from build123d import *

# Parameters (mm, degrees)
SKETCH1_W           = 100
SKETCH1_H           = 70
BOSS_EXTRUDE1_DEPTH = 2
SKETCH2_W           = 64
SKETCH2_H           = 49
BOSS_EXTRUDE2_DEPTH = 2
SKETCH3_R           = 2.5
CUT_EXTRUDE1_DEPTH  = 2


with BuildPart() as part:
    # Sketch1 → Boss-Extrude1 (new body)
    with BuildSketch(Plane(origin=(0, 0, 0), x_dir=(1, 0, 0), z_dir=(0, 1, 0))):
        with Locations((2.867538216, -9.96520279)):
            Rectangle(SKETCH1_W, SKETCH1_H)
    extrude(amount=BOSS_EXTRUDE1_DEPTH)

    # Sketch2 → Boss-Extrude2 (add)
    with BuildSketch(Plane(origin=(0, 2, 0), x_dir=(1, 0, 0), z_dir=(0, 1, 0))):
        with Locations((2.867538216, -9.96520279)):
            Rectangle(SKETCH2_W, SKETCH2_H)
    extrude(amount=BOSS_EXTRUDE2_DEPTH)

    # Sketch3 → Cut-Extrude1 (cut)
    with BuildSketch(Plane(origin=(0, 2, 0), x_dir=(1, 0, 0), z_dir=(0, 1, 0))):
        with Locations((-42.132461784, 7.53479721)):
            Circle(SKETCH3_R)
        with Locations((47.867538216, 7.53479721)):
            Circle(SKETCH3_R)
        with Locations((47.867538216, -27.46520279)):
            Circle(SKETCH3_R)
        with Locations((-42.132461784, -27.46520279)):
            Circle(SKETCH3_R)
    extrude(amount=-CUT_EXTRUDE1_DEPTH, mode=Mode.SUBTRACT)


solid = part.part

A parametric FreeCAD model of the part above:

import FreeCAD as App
import Part
import Sketcher
Q = App.Units.Quantity

doc = App.newDocument("Part")
body = doc.addObject("PartDesign::Body", "Body")

sketch1 = body.newObject("Sketcher::SketchObject", "Sketch")
sketch1.AttachmentSupport = (doc.getObject("XZ_Plane"), [""])
sketch1.MapMode = "FlatFace"
sketch1.addGeometry(Part.LineSegment(App.Vector(-47, -25, 0), App.Vector(-47, 45, 0)), False)
sketch1.addGeometry(Part.LineSegment(App.Vector(-47, 45, 0), App.Vector(53, 45, 0)), False)
sketch1.addGeometry(Part.LineSegment(App.Vector(53, 45, 0), App.Vector(53, -25, 0)), False)
sketch1.addGeometry(Part.LineSegment(App.Vector(53, -25, 0), App.Vector(-47, -25, 0)), False)
sketch1.addConstraint(Sketcher.Constraint("Coincident", 0, 2, 1, 1))
sketch1.addConstraint(Sketcher.Constraint("Coincident", 1, 2, 2, 1))
sketch1.addConstraint(Sketcher.Constraint("Coincident", 2, 2, 3, 1))
sketch1.addConstraint(Sketcher.Constraint("Coincident", 3, 2, 0, 1))
sketch1.addConstraint(Sketcher.Constraint("Vertical", 0))
sketch1.addConstraint(Sketcher.Constraint("Horizontal", 1))
sketch1.addConstraint(Sketcher.Constraint("Vertical", 2))
sketch1.addConstraint(Sketcher.Constraint("Horizontal", 3))
sketch1.addConstraint(Sketcher.Constraint("DistanceX", 1, 1, 1, 2, Q("100 mm")))
sketch1.addConstraint(Sketcher.Constraint("DistanceY", 0, 1, 0, 2, Q("70 mm")))
sketch1.addConstraint(Sketcher.Constraint("DistanceX", 0, 2, -1, 1, Q("47.132462 mm")))
sketch1.addConstraint(Sketcher.Constraint("DistanceY", -1, 1, 0, 2, Q("44.965203 mm")))
pad1 = body.newObject("PartDesign::Pad", "Pad")
pad1.Profile = sketch1
pad1.Length = 2
pad1.Reversed = True

sketch2 = body.newObject("Sketcher::SketchObject", "Sketch001")
sketch2.AttachmentSupport = (doc.getObject("XZ_Plane"), [""])
sketch2.MapMode = "FlatFace"
sketch2.AttachmentOffset = App.Placement(App.Vector(0, 0, -2), App.Rotation())
sketch2.addGeometry(Part.LineSegment(App.Vector(-29, -15, 0), App.Vector(-29, 34, 0)), False)
sketch2.addGeometry(Part.LineSegment(App.Vector(-29, 34, 0), App.Vector(35, 34, 0)), False)
sketch2.addGeometry(Part.LineSegment(App.Vector(35, 34, 0), App.Vector(35, -15, 0)), False)
sketch2.addGeometry(Part.LineSegment(App.Vector(35, -15, 0), App.Vector(-29, -15, 0)), False)
sketch2.addConstraint(Sketcher.Constraint("Coincident", 0, 2, 1, 1))
sketch2.addConstraint(Sketcher.Constraint("Coincident", 1, 2, 2, 1))
sketch2.addConstraint(Sketcher.Constraint("Coincident", 2, 2, 3, 1))
sketch2.addConstraint(Sketcher.Constraint("Coincident", 3, 2, 0, 1))
sketch2.addConstraint(Sketcher.Constraint("Vertical", 0))
sketch2.addConstraint(Sketcher.Constraint("Horizontal", 1))
sketch2.addConstraint(Sketcher.Constraint("Vertical", 2))
sketch2.addConstraint(Sketcher.Constraint("Horizontal", 3))
sketch2.addConstraint(Sketcher.Constraint("DistanceX", 1, 1, 1, 2, Q("64 mm")))
sketch2.addConstraint(Sketcher.Constraint("DistanceY", 0, 1, 0, 2, Q("49 mm")))
sketch2.addConstraint(Sketcher.Constraint("DistanceX", 0, 2, -1, 1, Q("29.132462 mm")))
sketch2.addConstraint(Sketcher.Constraint("DistanceY", -1, 1, 0, 2, Q("34.465203 mm")))
pad2 = body.newObject("PartDesign::Pad", "Pad001")
pad2.Profile = sketch2
pad2.Length = 2
pad2.Reversed = True

sketch3 = body.newObject("Sketcher::SketchObject", "Sketch002")
sketch3.AttachmentSupport = (doc.getObject("XZ_Plane"), [""])
sketch3.MapMode = "FlatFace"
sketch3.AttachmentOffset = App.Placement(App.Vector(0, 0, -2), App.Rotation())
sketch3.addGeometry(Part.Circle(App.Vector(-42.1, -7.5, 0), App.Vector(0, 0, 1), 2.5), False)
sketch3.addGeometry(Part.Circle(App.Vector(47.9, -7.5, 0), App.Vector(0, 0, 1), 2.5), False)
sketch3.addGeometry(Part.Circle(App.Vector(47.9, 27.5, 0), App.Vector(0, 0, 1), 2.5), False)
sketch3.addGeometry(Part.Circle(App.Vector(-42.1, 27.5, 0), App.Vector(0, 0, 1), 2.5), False)
sketch3.addConstraint(Sketcher.Constraint("Equal", 0, 1))
sketch3.addConstraint(Sketcher.Constraint("Equal", 1, 2))
sketch3.addConstraint(Sketcher.Constraint("Equal", 2, 3))
sketch3.addConstraint(Sketcher.Constraint("Horizontal", 0, 3, 1, 3))
sketch3.addConstraint(Sketcher.Constraint("Horizontal", 2, 3, 3, 3))
sketch3.addConstraint(Sketcher.Constraint("Vertical", 1, 3, 2, 3))
sketch3.addConstraint(Sketcher.Constraint("Vertical", 0, 3, 3, 3))
sketch3.addConstraint(Sketcher.Constraint("Diameter", 0, Q("5 mm")))
sketch3.addConstraint(Sketcher.Constraint("DistanceX", 0, 3, 1, 3, Q("90 mm")))
sketch3.addConstraint(Sketcher.Constraint("DistanceY", 1, 3, 2, 3, Q("35 mm")))
sketch3.addConstraint(Sketcher.Constraint("DistanceX", 0, 3, -1, 1, Q("42.132462 mm")))
sketch3.addConstraint(Sketcher.Constraint("DistanceY", 0, 3, -1, 1, Q("7.534797 mm")))
pocket1 = body.newObject("PartDesign::Pocket", "Pocket")
pocket1.Profile = sketch3
pocket1.Length = 2
pocket1.Reversed = True

doc.recompute()
